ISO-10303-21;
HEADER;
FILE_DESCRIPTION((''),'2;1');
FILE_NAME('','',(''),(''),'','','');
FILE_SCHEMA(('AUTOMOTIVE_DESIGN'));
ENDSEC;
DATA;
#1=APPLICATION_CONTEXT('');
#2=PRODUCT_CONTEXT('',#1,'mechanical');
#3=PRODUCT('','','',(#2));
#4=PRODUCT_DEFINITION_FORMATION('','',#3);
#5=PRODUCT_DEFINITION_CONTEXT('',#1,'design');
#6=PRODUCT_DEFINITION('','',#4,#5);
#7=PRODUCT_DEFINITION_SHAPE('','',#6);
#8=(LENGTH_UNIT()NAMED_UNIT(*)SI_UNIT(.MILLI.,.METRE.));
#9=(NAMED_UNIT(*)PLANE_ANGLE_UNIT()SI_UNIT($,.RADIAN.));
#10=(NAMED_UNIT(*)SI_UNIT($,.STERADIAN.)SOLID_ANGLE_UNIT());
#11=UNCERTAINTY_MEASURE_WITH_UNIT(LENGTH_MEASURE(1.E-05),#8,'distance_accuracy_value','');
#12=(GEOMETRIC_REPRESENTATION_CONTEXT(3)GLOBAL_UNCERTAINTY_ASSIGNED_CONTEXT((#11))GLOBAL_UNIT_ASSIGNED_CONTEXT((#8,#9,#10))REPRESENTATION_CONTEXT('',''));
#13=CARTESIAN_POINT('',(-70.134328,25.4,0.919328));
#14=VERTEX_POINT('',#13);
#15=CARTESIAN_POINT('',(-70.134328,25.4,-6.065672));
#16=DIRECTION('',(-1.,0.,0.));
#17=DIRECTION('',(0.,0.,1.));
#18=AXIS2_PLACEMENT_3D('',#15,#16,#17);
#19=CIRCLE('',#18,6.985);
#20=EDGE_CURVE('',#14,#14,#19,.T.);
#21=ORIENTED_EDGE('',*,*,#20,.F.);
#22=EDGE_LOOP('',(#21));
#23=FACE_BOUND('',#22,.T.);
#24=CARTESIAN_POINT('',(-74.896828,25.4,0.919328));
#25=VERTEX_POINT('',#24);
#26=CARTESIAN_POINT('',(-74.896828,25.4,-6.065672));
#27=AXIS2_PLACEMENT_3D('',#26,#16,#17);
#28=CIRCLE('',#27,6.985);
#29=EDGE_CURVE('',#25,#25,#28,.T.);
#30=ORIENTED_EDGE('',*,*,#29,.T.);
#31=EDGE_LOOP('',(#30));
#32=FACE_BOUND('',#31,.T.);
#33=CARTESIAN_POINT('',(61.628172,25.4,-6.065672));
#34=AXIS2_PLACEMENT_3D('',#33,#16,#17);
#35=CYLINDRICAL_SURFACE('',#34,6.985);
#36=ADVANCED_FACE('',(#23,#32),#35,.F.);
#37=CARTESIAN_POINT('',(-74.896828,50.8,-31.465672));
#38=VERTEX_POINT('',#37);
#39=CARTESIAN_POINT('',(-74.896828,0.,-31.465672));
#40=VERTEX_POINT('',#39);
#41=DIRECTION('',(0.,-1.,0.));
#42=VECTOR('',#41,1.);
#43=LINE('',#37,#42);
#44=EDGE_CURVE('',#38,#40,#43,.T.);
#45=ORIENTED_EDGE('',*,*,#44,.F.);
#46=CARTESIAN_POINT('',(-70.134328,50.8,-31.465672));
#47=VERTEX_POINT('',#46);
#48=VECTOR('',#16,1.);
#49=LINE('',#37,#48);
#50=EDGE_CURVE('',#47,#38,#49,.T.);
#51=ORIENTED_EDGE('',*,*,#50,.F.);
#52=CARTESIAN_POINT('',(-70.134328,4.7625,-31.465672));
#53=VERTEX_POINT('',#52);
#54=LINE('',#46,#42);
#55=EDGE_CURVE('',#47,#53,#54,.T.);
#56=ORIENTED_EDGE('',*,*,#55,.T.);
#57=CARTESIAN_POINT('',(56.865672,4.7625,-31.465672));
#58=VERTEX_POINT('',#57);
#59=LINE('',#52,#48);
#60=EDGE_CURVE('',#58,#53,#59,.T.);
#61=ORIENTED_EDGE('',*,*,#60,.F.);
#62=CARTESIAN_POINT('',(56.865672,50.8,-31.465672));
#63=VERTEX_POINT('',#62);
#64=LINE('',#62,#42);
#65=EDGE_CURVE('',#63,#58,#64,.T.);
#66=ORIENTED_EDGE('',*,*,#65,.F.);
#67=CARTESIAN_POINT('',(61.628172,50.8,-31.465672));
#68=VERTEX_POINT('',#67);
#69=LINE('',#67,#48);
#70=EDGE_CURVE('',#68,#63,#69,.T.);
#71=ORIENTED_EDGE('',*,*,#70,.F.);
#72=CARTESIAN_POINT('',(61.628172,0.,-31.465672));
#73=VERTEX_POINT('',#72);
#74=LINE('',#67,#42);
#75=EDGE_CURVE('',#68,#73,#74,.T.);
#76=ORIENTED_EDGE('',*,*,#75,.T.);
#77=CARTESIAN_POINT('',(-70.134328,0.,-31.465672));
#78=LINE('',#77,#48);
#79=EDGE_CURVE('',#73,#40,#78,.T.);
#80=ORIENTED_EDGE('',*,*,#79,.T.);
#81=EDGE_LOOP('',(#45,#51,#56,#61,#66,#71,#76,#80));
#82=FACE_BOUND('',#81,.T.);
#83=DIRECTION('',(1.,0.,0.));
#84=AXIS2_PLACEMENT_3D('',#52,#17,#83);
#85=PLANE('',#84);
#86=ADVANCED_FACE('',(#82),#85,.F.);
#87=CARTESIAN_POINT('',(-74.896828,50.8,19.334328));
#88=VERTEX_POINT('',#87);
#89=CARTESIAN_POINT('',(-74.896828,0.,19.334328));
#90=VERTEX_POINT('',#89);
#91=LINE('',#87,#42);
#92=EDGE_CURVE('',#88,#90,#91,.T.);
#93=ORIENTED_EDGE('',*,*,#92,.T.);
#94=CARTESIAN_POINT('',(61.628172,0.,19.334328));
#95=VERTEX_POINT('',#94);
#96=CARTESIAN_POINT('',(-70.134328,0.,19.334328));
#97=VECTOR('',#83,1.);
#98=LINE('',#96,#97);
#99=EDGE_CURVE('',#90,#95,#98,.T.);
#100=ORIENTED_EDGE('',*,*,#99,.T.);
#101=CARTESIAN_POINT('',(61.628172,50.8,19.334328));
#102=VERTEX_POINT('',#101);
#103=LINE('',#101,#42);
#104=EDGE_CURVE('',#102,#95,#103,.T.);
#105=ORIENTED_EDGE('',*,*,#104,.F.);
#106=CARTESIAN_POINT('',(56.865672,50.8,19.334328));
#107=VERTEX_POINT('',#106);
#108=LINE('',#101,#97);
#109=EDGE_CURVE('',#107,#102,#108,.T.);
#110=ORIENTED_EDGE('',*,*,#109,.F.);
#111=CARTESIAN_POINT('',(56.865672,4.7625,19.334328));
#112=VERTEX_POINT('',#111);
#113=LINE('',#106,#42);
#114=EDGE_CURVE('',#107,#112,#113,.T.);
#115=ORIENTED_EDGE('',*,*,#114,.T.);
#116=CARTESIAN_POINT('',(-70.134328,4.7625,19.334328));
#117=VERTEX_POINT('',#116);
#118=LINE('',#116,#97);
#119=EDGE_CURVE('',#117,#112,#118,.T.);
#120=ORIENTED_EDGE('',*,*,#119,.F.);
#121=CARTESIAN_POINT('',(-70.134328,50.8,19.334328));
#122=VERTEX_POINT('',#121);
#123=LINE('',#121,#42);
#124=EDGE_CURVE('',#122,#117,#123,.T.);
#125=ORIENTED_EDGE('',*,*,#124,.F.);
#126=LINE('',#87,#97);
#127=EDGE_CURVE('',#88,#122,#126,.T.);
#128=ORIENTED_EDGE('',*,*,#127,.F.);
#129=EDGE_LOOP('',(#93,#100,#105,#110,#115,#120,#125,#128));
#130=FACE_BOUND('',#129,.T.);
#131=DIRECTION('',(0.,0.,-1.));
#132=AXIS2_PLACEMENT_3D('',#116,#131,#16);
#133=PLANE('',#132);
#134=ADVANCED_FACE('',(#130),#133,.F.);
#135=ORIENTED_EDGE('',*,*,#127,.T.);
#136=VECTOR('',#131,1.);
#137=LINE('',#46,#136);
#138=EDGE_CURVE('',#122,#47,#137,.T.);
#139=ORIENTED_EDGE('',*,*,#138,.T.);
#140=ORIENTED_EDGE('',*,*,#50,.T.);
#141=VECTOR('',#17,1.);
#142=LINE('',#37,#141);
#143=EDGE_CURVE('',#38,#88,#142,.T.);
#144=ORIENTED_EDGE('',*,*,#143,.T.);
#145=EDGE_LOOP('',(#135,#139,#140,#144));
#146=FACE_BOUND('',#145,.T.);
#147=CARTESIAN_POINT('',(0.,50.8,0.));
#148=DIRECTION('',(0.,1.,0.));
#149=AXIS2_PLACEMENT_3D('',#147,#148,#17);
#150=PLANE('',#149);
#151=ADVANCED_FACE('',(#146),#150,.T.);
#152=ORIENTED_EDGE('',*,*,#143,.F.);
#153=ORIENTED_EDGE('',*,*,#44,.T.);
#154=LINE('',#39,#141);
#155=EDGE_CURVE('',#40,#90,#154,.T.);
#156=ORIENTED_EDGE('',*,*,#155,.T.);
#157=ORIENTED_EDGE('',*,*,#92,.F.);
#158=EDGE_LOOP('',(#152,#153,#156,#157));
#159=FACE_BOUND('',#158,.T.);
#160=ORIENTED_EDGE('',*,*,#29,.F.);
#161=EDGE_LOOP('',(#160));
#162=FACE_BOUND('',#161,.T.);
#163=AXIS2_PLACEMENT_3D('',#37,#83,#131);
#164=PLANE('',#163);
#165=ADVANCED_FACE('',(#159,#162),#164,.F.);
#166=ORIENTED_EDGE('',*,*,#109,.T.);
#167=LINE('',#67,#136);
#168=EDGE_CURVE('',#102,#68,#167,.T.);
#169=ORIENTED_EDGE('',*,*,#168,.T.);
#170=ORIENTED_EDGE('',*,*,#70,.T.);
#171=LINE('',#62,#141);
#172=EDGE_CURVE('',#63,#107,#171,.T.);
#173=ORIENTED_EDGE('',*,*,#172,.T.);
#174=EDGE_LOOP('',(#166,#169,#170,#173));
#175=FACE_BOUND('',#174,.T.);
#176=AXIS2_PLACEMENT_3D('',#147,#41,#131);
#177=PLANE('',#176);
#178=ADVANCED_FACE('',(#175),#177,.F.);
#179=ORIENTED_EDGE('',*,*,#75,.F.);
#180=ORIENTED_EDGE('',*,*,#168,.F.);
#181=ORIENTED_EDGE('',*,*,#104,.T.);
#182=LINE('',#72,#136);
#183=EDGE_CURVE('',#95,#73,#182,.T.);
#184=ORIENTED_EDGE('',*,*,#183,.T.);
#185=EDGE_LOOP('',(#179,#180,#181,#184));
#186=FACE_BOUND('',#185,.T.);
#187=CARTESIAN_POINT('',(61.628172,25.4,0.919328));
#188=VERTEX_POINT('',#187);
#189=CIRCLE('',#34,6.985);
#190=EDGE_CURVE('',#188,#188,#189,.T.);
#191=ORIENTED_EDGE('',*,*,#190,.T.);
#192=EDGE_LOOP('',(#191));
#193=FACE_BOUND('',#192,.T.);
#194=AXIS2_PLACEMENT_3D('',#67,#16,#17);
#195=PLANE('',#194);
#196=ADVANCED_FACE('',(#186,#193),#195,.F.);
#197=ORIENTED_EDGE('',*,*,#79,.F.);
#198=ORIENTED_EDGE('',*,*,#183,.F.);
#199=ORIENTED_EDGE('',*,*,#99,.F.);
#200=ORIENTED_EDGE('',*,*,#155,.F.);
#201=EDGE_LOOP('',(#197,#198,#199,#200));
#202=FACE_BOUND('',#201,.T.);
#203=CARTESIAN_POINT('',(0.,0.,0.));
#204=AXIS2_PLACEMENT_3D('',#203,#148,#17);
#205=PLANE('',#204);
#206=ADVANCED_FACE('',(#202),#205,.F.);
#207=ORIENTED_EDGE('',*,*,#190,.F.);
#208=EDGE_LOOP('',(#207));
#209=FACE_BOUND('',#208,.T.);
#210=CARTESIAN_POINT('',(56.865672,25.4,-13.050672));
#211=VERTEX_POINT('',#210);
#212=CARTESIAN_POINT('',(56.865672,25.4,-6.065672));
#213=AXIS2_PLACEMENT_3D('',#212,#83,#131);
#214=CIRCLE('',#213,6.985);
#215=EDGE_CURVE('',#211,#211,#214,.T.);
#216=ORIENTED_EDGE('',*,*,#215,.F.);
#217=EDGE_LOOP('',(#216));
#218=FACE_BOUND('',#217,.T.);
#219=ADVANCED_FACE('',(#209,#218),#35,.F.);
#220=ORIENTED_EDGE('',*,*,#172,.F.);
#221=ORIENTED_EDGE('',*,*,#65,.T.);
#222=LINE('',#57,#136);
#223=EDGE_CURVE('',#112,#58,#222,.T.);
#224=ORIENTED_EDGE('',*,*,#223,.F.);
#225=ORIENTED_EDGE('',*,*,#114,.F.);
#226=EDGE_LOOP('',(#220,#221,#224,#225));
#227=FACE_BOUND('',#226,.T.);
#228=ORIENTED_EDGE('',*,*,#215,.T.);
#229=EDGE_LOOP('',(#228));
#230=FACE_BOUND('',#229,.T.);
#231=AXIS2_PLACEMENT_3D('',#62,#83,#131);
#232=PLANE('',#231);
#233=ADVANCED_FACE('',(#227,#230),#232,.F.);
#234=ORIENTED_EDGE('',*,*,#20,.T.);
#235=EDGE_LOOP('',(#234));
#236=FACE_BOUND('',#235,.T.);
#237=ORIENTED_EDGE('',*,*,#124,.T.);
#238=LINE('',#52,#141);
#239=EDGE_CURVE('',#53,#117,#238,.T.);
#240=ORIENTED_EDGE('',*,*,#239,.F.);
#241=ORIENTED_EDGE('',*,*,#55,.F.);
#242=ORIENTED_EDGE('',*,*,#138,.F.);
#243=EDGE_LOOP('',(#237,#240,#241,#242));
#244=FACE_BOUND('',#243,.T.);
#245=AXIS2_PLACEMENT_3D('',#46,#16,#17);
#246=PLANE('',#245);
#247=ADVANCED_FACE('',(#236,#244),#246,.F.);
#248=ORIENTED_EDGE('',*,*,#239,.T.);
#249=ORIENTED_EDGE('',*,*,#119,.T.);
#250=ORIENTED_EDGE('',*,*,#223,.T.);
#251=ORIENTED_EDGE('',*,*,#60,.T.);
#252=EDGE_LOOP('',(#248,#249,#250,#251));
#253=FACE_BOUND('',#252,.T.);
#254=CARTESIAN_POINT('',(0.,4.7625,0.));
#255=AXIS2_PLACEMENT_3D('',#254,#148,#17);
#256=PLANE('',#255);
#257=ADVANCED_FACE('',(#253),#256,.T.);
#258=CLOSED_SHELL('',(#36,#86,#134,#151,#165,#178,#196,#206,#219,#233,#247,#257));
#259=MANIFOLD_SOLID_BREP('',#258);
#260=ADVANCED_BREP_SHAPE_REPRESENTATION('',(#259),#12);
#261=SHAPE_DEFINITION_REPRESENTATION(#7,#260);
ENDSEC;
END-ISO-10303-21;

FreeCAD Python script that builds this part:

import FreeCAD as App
import Part
import Sketcher
from FreeCAD import Vector
Q = App.Units.Quantity

doc = App.newDocument("Part")
body = doc.addObject("PartDesign::Body", "Body")

# Sketch on XZ plane
sketch1 = body.newObject("Sketcher::SketchObject", "Sketch")
sketch1.AttachmentSupport = (doc.getObject("XZ_Plane"), [""])
sketch1.MapMode = "FlatFace"
sketch1.addGeometry(Part.LineSegment(Vector(-70, -31, 0), Vector(-70, 19, 0)), False)
sketch1.addGeometry(Part.LineSegment(Vector(-70, 19, 0), Vector(57, 19, 0)), False)
sketch1.addGeometry(Part.LineSegment(Vector(57, 19, 0), Vector(57, -31, 0)), False)
sketch1.addGeometry(Part.LineSegment(Vector(57, -31, 0), Vector(-70, -31, 0)), False)
sketch1.addConstraint(Sketcher.Constraint("Coincident", 0, 2, 1, 1))
sketch1.addConstraint(Sketcher.Constraint("Coincident", 1, 2, 2, 1))
sketch1.addConstraint(Sketcher.Constraint("Coincident", 2, 2, 3, 1))
sketch1.addConstraint(Sketcher.Constraint("Coincident", 3, 2, 0, 1))
sketch1.addConstraint(Sketcher.Constraint("Vertical", 0))
sketch1.addConstraint(Sketcher.Constraint("Horizontal", 1))
sketch1.addConstraint(Sketcher.Constraint("Vertical", 2))
sketch1.addConstraint(Sketcher.Constraint("Horizontal", 3))
sketch1.addConstraint(Sketcher.Constraint("DistanceX", 1, 1, 1, 2, Q("5 in")))
sketch1.addConstraint(Sketcher.Constraint("DistanceY", 0, 1, 0, 2, Q("2 in")))
sketch1.addConstraint(Sketcher.Constraint("DistanceX", 0, 2, -1, 1, Q("70.134328 mm")))
sketch1.addConstraint(Sketcher.Constraint("DistanceY", -1, 1, 0, 2, Q("19.334328 mm")))
pad1 = body.newObject("PartDesign::Pad", "Pad")
pad1.Profile = sketch1
pad1.Length = Q("0.1875 in")
pad1.Reversed = True

# Sketch on XZ plane
sketch2 = body.newObject("Sketcher::SketchObject", "Sketch001")
sketch2.AttachmentSupport = (doc.getObject("XZ_Plane"), [""])
sketch2.MapMode = "FlatFace"
sketch2.addGeometry(Part.LineSegment(Vector(56.9, -31.5, 0), Vector(56.9, 19.3, 0)), False)
sketch2.addGeometry(Part.LineSegment(Vector(56.9, 19.3, 0), Vector(61.6, 19.3, 0)), False)
sketch2.addGeometry(Part.LineSegment(Vector(61.6, 19.3, 0), Vector(61.6, -31.5, 0)), False)
sketch2.addGeometry(Part.LineSegment(Vector(61.6, -31.5, 0), Vector(56.9, -31.5, 0)), False)
sketch2.addGeometry(Part.LineSegment(Vector(-74.9, -31.5, 0), Vector(-74.9, 19.3, 0)), False)
sketch2.addGeometry(Part.LineSegment(Vector(-74.9, 19.3, 0), Vector(-70.1, 19.3, 0)), False)
sketch2.addGeometry(Part.LineSegment(Vector(-70.1, 19.3, 0), Vector(-70.1, -31.5, 0)), False)
sketch2.addGeometry(Part.LineSegment(Vector(-70.1, -31.5, 0), Vector(-74.9, -31.5, 0)), False)
sketch2.addConstraint(Sketcher.Constraint("Coincident", 0, 2, 1, 1))
sketch2.addConstraint(Sketcher.Constraint("Coincident", 1, 2, 2, 1))
sketch2.addConstraint(Sketcher.Constraint("Coincident", 2, 2, 3, 1))
sketch2.addConstraint(Sketcher.Constraint("Coincident", 3, 2, 0, 1))
sketch2.addConstraint(Sketcher.Constraint("Coincident", 4, 2, 5, 1))
sketch2.addConstraint(Sketcher.Constraint("Coincident", 5, 2, 6, 1))
sketch2.addConstraint(Sketcher.Constraint("Coincident", 6, 2, 7, 1))
sketch2.addConstraint(Sketcher.Constraint("Coincident", 7, 2, 4, 1))
sketch2.addConstraint(Sketcher.Constraint("Vertical", 0))
sketch2.addConstraint(Sketcher.Constraint("Horizontal", 1))
sketch2.addConstraint(Sketcher.Constraint("Vertical", 2))
sketch2.addConstraint(Sketcher.Constraint("Horizontal", 3))
sketch2.addConstraint(Sketcher.Constraint("Vertical", 4))
sketch2.addConstraint(Sketcher.Constraint("Horizontal", 5))
sketch2.addConstraint(Sketcher.Constraint("Vertical", 6))
sketch2.addConstraint(Sketcher.Constraint("Horizontal", 7))
sketch2.addConstraint(Sketcher.Constraint("Horizontal", 1, 2, 4, 2))
sketch2.addConstraint(Sketcher.Constraint("Horizontal", 3, 2, 6, 2))
sketch2.addConstraint(Sketcher.Constraint("Equal", 3, 5))
sketch2.addConstraint(Sketcher.Constraint("DistanceY", 0, 1, 0, 2, Q("2 in")))
sketch2.addConstraint(Sketcher.Constraint("DistanceX", 5, 2, 0, 2, Q("5 in")))
sketch2.addConstraint(Sketcher.Constraint("DistanceX", 1, 1, 1, 2, Q("0.1875 in")))
sketch2.addConstraint(Sketcher.Constraint("DistanceX", -1, 1, 0, 2, Q("56.865672 mm")))
sketch2.addConstraint(Sketcher.Constraint("DistanceY", -1, 1, 0, 2, Q("19.334328 mm")))
pad2 = body.newObject("PartDesign::Pad", "Pad001")
pad2.Profile = sketch2
pad2.Length = Q("2 in")
pad2.Reversed = True

# Sketch on YZ plane
sketch3 = body.newObject("Sketcher::SketchObject", "Sketch002")
sketch3.AttachmentSupport = (doc.getObject("YZ_Plane"), [""])
sketch3.MapMode = "FlatFace"
sketch3.AttachmentOffset = App.Placement(Vector(0, 0, -74.896828), App.Rotation())
sketch3.addGeometry(Part.Circle(Vector(25, -6, 0), Vector(0, 0, 1), 7), False)
sketch3.addConstraint(Sketcher.Constraint("Diameter", 0, Q("0.55 in")))
sketch3.addConstraint(Sketcher.Constraint("DistanceX", -1, 1, 0, 3, Q("1 in")))
sketch3.addConstraint(Sketcher.Constraint("DistanceY", 0, 3, -1, 1, Q("6.065672 mm")))
pocket1 = body.newObject("PartDesign::Pocket", "Pocket")
pocket1.Profile = sketch3
pocket1.Type = "ThroughAll"
pocket1.Reversed = True

doc.recompute()
